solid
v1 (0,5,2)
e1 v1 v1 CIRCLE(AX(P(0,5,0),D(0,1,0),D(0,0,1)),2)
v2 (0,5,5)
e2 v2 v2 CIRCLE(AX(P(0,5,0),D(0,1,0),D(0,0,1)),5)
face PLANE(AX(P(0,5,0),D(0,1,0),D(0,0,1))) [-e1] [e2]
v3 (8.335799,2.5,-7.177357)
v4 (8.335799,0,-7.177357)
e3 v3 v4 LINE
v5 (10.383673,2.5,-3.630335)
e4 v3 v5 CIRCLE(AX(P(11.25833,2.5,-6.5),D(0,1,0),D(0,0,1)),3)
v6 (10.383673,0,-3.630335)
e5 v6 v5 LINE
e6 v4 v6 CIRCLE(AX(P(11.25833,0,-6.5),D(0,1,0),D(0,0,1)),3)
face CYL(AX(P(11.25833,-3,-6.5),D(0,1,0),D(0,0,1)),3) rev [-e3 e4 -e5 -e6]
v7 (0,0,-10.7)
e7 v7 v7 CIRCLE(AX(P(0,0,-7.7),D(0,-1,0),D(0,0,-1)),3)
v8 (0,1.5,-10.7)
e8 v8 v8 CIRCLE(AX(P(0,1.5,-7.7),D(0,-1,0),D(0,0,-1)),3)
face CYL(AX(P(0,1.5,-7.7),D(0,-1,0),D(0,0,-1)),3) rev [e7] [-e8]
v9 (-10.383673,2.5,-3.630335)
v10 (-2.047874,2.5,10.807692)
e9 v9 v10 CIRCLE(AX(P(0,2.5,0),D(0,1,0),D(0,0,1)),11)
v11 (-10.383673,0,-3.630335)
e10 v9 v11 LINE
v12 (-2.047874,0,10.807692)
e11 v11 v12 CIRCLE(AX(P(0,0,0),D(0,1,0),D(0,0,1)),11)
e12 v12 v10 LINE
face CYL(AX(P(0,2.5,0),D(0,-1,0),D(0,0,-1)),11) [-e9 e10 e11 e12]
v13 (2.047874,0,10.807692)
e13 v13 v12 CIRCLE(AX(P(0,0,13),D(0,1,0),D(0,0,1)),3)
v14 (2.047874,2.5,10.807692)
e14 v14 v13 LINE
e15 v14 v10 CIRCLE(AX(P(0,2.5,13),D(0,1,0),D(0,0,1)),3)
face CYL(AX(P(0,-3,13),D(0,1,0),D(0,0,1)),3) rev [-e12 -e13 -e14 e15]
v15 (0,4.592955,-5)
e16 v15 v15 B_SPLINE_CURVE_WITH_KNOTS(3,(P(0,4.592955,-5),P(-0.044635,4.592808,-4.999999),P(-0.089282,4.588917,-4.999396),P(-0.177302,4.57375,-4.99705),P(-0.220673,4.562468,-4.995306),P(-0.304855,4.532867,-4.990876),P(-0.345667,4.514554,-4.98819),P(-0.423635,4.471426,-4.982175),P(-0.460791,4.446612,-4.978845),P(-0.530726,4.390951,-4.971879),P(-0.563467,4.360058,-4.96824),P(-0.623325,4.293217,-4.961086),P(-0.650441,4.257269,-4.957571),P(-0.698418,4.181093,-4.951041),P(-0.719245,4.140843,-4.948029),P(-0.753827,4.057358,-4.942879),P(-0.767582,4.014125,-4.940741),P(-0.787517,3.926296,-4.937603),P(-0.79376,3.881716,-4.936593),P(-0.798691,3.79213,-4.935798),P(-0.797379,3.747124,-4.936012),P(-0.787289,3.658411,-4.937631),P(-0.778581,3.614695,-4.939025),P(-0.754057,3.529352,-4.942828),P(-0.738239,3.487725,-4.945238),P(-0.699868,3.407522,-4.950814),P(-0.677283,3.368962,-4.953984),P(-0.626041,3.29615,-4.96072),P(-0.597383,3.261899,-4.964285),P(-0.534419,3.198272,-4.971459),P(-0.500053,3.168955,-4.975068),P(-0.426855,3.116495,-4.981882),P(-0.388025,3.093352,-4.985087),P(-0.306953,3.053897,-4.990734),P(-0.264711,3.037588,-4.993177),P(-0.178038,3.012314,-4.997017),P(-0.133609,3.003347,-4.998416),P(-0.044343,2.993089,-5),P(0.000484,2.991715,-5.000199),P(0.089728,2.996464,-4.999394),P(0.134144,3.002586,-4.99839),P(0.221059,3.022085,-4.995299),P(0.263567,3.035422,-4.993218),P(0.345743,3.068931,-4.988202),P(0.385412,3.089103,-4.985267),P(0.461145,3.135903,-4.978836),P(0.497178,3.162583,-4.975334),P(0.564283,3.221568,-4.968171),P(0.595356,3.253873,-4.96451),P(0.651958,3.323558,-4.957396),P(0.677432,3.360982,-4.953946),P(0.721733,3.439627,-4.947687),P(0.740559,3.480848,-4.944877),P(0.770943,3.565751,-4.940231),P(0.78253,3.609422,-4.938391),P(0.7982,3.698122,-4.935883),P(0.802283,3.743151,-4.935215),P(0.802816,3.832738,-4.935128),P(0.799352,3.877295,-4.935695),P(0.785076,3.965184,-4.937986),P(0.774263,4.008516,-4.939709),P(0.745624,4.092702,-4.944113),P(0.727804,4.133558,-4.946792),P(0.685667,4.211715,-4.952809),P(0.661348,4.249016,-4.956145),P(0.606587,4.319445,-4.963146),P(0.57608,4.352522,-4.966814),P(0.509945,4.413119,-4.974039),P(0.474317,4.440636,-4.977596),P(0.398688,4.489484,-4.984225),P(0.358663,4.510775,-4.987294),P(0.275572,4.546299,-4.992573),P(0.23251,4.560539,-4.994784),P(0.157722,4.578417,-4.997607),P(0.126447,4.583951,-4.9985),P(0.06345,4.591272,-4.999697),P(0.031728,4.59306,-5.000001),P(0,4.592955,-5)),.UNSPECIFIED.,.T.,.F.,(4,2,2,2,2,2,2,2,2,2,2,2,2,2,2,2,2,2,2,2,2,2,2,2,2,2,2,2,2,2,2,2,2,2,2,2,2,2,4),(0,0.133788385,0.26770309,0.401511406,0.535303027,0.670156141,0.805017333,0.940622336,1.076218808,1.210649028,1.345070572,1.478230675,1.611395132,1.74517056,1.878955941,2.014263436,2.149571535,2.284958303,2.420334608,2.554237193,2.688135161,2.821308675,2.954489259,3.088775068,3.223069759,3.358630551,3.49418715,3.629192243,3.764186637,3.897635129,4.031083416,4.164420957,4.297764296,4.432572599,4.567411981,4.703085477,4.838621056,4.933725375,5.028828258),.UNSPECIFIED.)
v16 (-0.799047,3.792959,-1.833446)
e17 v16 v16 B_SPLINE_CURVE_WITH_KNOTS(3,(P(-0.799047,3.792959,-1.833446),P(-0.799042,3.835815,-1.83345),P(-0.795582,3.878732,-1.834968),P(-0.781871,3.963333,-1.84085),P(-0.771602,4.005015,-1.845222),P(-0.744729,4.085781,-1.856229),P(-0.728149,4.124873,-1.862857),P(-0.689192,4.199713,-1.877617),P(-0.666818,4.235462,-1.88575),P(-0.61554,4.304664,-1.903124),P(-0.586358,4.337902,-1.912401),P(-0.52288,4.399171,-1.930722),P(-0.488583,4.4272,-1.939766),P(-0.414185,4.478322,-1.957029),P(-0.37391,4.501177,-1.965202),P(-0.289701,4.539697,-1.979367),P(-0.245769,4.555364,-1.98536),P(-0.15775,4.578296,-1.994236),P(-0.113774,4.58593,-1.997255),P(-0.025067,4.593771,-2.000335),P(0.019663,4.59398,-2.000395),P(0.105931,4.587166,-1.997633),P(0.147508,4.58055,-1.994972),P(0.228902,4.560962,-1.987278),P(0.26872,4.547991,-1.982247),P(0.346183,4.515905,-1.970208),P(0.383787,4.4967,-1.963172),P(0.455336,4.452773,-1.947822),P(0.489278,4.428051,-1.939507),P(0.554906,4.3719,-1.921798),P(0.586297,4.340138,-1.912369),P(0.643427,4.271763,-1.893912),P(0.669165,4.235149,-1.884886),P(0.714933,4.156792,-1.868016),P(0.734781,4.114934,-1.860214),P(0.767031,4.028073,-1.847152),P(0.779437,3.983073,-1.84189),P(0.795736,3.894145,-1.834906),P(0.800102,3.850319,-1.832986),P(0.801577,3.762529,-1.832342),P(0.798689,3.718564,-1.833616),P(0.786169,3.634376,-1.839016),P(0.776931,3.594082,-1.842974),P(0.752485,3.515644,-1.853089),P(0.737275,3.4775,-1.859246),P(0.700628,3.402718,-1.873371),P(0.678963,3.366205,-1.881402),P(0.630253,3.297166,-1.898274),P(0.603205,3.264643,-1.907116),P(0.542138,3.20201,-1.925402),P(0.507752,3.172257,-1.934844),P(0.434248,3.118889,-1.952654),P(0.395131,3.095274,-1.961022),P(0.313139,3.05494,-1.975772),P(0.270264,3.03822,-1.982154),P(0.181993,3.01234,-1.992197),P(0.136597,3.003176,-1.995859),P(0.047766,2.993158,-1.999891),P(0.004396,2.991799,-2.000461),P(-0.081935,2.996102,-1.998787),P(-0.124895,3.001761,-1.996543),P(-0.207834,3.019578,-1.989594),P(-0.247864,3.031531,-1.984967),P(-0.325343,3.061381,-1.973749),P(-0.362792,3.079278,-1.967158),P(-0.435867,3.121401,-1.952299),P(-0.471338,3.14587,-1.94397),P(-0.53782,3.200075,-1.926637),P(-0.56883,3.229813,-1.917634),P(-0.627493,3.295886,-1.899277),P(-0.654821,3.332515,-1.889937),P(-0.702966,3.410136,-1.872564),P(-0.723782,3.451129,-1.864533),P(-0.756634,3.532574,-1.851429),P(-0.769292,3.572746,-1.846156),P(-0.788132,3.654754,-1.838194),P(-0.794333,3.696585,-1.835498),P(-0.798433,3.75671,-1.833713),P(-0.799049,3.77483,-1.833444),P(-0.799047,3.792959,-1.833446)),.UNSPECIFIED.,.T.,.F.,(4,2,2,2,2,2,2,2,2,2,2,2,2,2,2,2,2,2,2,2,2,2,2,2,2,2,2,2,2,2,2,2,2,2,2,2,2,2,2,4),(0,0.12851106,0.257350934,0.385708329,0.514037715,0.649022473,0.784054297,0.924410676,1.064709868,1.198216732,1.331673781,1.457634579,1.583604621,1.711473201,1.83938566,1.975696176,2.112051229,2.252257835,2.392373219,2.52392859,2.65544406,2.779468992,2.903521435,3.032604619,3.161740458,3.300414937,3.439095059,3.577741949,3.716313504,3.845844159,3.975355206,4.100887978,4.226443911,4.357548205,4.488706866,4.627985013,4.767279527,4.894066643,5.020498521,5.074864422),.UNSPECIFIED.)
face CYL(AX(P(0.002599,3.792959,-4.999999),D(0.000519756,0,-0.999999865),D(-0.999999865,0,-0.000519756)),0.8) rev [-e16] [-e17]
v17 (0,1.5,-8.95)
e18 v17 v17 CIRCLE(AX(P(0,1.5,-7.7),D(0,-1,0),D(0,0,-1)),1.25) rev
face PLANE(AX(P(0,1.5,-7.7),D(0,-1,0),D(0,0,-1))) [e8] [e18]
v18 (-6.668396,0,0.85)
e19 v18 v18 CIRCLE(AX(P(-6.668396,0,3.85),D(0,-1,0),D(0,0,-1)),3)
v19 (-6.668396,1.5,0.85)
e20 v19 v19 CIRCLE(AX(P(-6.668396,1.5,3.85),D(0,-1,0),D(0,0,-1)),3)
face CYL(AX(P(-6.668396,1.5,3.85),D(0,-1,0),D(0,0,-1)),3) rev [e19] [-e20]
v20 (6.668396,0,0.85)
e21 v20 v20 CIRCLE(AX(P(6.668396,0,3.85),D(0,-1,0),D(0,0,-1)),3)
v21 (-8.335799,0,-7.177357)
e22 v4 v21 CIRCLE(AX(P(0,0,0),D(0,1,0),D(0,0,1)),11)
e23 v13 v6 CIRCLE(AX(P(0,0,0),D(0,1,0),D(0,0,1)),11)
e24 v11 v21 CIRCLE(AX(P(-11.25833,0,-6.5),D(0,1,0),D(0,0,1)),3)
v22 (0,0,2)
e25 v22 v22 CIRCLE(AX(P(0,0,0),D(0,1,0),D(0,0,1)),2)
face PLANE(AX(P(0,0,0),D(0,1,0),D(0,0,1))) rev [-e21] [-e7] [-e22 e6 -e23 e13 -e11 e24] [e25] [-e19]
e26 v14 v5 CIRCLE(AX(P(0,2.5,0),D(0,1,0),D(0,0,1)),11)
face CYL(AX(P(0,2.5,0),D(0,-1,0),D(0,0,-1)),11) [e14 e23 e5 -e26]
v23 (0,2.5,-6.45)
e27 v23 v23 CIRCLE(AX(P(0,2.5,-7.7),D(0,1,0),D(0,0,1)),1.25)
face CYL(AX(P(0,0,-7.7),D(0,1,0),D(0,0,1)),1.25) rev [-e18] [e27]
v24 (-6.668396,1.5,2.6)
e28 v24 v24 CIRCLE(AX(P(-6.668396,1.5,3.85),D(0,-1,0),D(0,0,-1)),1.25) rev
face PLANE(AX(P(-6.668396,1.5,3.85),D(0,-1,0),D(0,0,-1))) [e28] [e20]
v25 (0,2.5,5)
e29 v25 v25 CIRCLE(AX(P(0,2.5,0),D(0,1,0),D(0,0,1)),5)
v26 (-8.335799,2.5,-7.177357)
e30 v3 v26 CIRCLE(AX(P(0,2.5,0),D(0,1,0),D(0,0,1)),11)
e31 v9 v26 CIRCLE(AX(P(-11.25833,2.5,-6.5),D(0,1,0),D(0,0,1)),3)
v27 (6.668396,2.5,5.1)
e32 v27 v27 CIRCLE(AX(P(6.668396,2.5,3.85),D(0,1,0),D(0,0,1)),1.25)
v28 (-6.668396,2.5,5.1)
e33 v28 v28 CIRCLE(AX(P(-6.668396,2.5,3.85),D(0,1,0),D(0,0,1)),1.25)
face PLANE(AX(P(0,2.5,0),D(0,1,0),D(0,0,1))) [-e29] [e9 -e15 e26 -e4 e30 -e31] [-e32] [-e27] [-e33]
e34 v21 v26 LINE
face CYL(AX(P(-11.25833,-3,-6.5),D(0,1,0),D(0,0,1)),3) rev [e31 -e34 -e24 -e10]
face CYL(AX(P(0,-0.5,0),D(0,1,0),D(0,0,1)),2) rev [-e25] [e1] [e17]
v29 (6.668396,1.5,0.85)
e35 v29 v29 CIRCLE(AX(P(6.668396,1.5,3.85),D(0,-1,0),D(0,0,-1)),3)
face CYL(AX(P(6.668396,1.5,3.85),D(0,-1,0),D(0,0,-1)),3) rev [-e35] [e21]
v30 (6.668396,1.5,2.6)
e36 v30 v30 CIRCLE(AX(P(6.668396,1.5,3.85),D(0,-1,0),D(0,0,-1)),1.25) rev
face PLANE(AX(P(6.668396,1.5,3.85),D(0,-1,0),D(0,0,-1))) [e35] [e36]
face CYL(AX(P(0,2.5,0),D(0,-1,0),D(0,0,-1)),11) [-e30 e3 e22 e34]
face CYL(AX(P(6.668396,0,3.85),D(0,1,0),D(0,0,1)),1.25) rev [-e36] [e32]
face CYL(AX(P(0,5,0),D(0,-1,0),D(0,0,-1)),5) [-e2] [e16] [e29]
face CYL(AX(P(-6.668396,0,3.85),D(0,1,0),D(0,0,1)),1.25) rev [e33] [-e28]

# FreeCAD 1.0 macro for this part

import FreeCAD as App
import Part
import Sketcher

V = App.Vector
Q = App.Units.Quantity

doc = App.newDocument("Part")
body = doc.addObject("PartDesign::Body", "Body")

# Sketch on XZ plane
sketch1 = body.newObject("Sketcher::SketchObject", "Sketch")
sketch1.AttachmentSupport = (doc.getObject("XZ_Plane"), [""])
sketch1.MapMode = "FlatFace"
sketch1.addGeometry(Part.Circle(V(0, 0, 0), V(0, 0, 1), 11), False)
sketch1.addConstraint([
    Sketcher.Constraint("Coincident", 0, 3, -1, 1),
    Sketcher.Constraint("Diameter", 0, Q("22 mm")),
])
pad1 = body.newObject("PartDesign::Pad", "Pad")
pad1.Profile = sketch1
pad1.Length = 2.5
pad1.Reversed = True

# Sketch on XZ plane
sketch2 = body.newObject("Sketcher::SketchObject", "Sketch001")
sketch2.AttachmentSupport = (doc.getObject("XZ_Plane"), [""])
sketch2.MapMode = "FlatFace"
sketch2.AttachmentOffset = App.Placement(V(0, 0, -2.5), App.Rotation())
sketch2.addGeometry([
    Part.Circle(V(0, -7.7, 0), V(0, 0, 1), 1.2),
    Part.Circle(V(6.7, 3.9, 0), V(0, 0, 1), 1.2),
    Part.Circle(V(-6.7, 3.9, 0), V(0, 0, 1), 1.2),
], False)
sketch2.addConstraint([
    Sketcher.Constraint("Equal", 0, 1),
    Sketcher.Constraint("Equal", 1, 2),
    Sketcher.Constraint("Symmetric", 1, 3, 2, 3, -2),
    Sketcher.Constraint("PointOnObject", 0, 3, -2),
    Sketcher.Constraint("Diameter", 0, Q("2.5 mm")),
    Sketcher.Constraint("DistanceY", 0, 3, -1, 1, Q("7.7 mm")),
    Sketcher.Constraint("DistanceY", -1, 1, 1, 3, Q("3.85 mm")),
    Sketcher.Constraint("DistanceX", 2, 3, 1, 3, Q("13.336791 mm")),
])
pocket1 = body.newObject("PartDesign::Pocket", "Pocket")
pocket1.Profile = sketch2
pocket1.Length = 2.5
pocket1.Reversed = True

# Sketch on XZ plane
sketch3 = body.newObject("Sketcher::SketchObject", "Sketch002")
sketch3.AttachmentSupport = (doc.getObject("XZ_Plane"), [""])
sketch3.MapMode = "FlatFace"
sketch3.AttachmentOffset = App.Placement(V(0, 0, -2.5), App.Rotation())
sketch3.addGeometry(Part.Circle(V(0, 0, 0), V(0, 0, 1), 5), False)
sketch3.addConstraint([
    Sketcher.Constraint("Coincident", 0, 3, -1, 1),
    Sketcher.Constraint("Diameter", 0, Q("10 mm")),
])
pad2 = body.newObject("PartDesign::Pad", "Pad001")
pad2.Profile = sketch3
pad2.Length = 2.5
pad2.Reversed = True

# Sketch on XZ plane
sketch4 = body.newObject("Sketcher::SketchObject", "Sketch003")
sketch4.AttachmentSupport = (doc.getObject("XZ_Plane"), [""])
sketch4.MapMode = "FlatFace"
sketch4.AttachmentOffset = App.Placement(V(0, 0, -5), App.Rotation())
sketch4.addGeometry(Part.Circle(V(0, 0, 0), V(0, 0, 1), 2), False)
sketch4.addConstraint([
    Sketcher.Constraint("Coincident", 0, 3, -1, 1),
    Sketcher.Constraint("Diameter", 0, Q("4 mm")),
])
pocket2 = body.newObject("PartDesign::Pocket", "Pocket001")
pocket2.Profile = sketch4
pocket2.Length = 5.5
pocket2.Reversed = True

# Sketch on an angled plane
sketch5 = body.newObject("Sketcher::SketchObject", "Sketch004")
sketch5.Placement = App.Placement(V(0.002599, 3.792959, -4.999999), App.Rotation(V(-0.999999865, 0, -0.000519756), V(0, 1, 0), V(0.000519756, 0, -0.999999865), "ZXY"))
sketch5.addGeometry(Part.Circle(V(0, 0, 0), V(0, 0, 1), 0.8), False)
sketch5.addConstraint([
    Sketcher.Constraint("Coincident", 0, 3, -1, 1),
    Sketcher.Constraint("Diameter", 0, Q("1.6 mm")),
])
pocket3 = body.newObject("PartDesign::Pocket", "Pocket002")
pocket3.Profile = sketch5
pocket3.Type = "UpToFirst"

# Sketch on XZ plane
sketch6 = body.newObject("Sketcher::SketchObject", "Sketch005")
sketch6.AttachmentSupport = (doc.getObject("XZ_Plane"), [""])
sketch6.MapMode = "FlatFace"
sketch6.AttachmentOffset = App.Placement(V(0, 0, -2.5), App.Rotation())
sketch6.addGeometry([
    Part.Circle(V(-11.3, -6.5, 0), V(0, 0, 1), 3),
    Part.Circle(V(0, 13, 0), V(0, 0, 1), 3),
    Part.Circle(V(11.3, -6.5, 0), V(0, 0, 1), 3),
], False)
sketch6.addConstraint([
    Sketcher.Constraint("Equal", 0, 1),
    Sketcher.Constraint("Equal", 1, 2),
    Sketcher.Constraint("Symmetric", 0, 3, 2, 3, -2),
    Sketcher.Constraint("PointOnObject", 1, 3, -2),
    Sketcher.Constraint("Diameter", 0, Q("6 mm")),
    Sketcher.Constraint("DistanceY", -1, 1, 1, 3, Q("13 mm")),
    Sketcher.Constraint("DistanceY", 0, 3, -1, 1, Q("6.5 mm")),
    Sketcher.Constraint("DistanceX", 0, 3, -1, 1, Q("11.25833 mm")),
])
pocket4 = body.newObject("PartDesign::Pocket", "Pocket003")
pocket4.Profile = sketch6
pocket4.Length = 5.5
pocket4.Reversed = True

# Sketch on XZ plane
sketch7 = body.newObject("Sketcher::SketchObject", "Sketch006")
sketch7.AttachmentSupport = (doc.getObject("XZ_Plane"), [""])
sketch7.MapMode = "FlatFace"
sketch7.addGeometry([
    Part.Circle(V(6.7, 3.9, 0), V(0, 0, 1), 3),
    Part.Circle(V(-6.7, 3.9, 0), V(0, 0, 1), 3),
    Part.Circle(V(0, -7.7, 0), V(0, 0, 1), 3),
], False)
sketch7.addConstraint([
    Sketcher.Constraint("Equal", 0, 1),
    Sketcher.Constraint("Equal", 1, 2),
    Sketcher.Constraint("Symmetric", 0, 3, 1, 3, -2),
    Sketcher.Constraint("PointOnObject", 2, 3, -2),
    Sketcher.Constraint("Diameter", 0, Q("6 mm")),
    Sketcher.Constraint("DistanceY", 2, 3, -1, 1, Q("7.7 mm")),
    Sketcher.Constraint("DistanceY", -1, 1, 0, 3, Q("3.85 mm")),
    Sketcher.Constraint("DistanceX", 1, 3, 0, 3, Q("13.336791 mm")),
])
pocket5 = body.newObject("PartDesign::Pocket", "Pocket004")
pocket5.Profile = sketch7
pocket5.Length = 1.5

doc.recompute()
